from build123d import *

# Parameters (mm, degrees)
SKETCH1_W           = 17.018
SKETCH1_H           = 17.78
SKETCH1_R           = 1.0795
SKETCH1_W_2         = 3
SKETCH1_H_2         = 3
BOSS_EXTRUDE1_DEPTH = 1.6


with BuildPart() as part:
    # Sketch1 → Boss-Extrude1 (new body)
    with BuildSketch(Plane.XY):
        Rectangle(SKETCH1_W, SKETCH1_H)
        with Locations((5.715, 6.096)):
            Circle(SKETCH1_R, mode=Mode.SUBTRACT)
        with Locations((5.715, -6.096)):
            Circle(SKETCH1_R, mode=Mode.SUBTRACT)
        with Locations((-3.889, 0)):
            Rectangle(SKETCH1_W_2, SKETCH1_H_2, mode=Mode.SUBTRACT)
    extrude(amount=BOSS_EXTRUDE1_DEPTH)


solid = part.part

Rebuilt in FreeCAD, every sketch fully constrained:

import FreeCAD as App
import Part
import Sketcher

V = App.Vector
Q = App.Units.Quantity

doc = App.newDocument("Part")
body = doc.addObject("PartDesign::Body", "Body")

# Sketch on XY plane
sketch1 = body.newObject("Sketcher::SketchObject", "Sketch")
sketch1.AttachmentSupport = (doc.getObject("XY_Plane"), [""])
sketch1.MapMode = "FlatFace"
sketch1.addGeometry(Part.LineSegment(V(-8.5, 8.9, 0), V(-8.5, -8.9, 0)), False)
sketch1.addGeometry(Part.LineSegment(V(-8.5, -8.9, 0), V(8.5, -8.9, 0)), False)
sketch1.addGeometry(Part.LineSegment(V(8.5, -8.9, 0), V(8.5, 8.9, 0)), False)
sketch1.addGeometry(Part.LineSegment(V(8.5, 8.9, 0), V(-8.5, 8.9, 0)), False)
sketch1.addGeometry(Part.LineSegment(V(-2.4, -1.5, 0), V(-5.4, -1.5, 0)), False)
sketch1.addGeometry(Part.LineSegment(V(-5.4, -1.5, 0), V(-5.4, 1.5, 0)), False)
sketch1.addGeometry(Part.LineSegment(V(-5.4, 1.5, 0), V(-2.4, 1.5, 0)), False)
sketch1.addGeometry(Part.LineSegment(V(-2.4, 1.5, 0), V(-2.4, -1.5, 0)), False)
sketch1.addGeometry(Part.Circle(V(5.7, -6.1, 0), V(0, 0, 1), 1.1), False)
sketch1.addGeometry(Part.Circle(V(5.7, 6.1, 0), V(0, 0, 1), 1.1), False)
sketch1.addConstraint(Sketcher.Constraint("Coincident", 0, 2, 1, 1))
sketch1.addConstraint(Sketcher.Constraint("Coincident", 1, 2, 2, 1))
sketch1.addConstraint(Sketcher.Constraint("Coincident", 2, 2, 3, 1))
sketch1.addConstraint(Sketcher.Constraint("Coincident", 3, 2, 0, 1))
sketch1.addConstraint(Sketcher.Constraint("Coincident", 4, 2, 5, 1))
sketch1.addConstraint(Sketcher.Constraint("Coincident", 5, 2, 6, 1))
sketch1.addConstraint(Sketcher.Constraint("Coincident", 6, 2, 7, 1))
sketch1.addConstraint(Sketcher.Constraint("Coincident", 7, 2, 4, 1))
sketch1.addConstraint(Sketcher.Constraint("Vertical", 0))
sketch1.addConstraint(Sketcher.Constraint("Horizontal", 1))
sketch1.addConstraint(Sketcher.Constraint("Vertical", 2))
sketch1.addConstraint(Sketcher.Constraint("Horizontal", 3))
sketch1.addConstraint(Sketcher.Constraint("Horizontal", 4))
sketch1.addConstraint(Sketcher.Constraint("Vertical", 5))
sketch1.addConstraint(Sketcher.Constraint("Horizontal", 6))
sketch1.addConstraint(Sketcher.Constraint("Vertical", 7))
sketch1.addConstraint(Sketcher.Constraint("Equal", 8, 9))
sketch1.addConstraint(Sketcher.Constraint("Symmetric", 0, 2, 2, 2, -1, 1))
sketch1.addConstraint(Sketcher.Constraint("Symmetric", 8, 3, 9, 3, -1))
sketch1.addConstraint(Sketcher.Constraint("Equal", 6, 5))
sketch1.addConstraint(Sketcher.Constraint("Diameter", 8, Q("0.085 in")))
sketch1.addConstraint(Sketcher.Constraint("DistanceY", 0, 2, 0, 1, Q("0.7 in")))
sketch1.addConstraint(Sketcher.Constraint("DistanceX", 1, 1, 1, 2, Q("0.67 in")))
sketch1.addConstraint(Sketcher.Constraint("DistanceY", 8, 3, -1, 1, Q("0.24 in")))
sketch1.addConstraint(Sketcher.Constraint("DistanceX", 0, 2, 8, 3, Q("0.56 in")))
sketch1.addConstraint(Sketcher.Constraint("DistanceX", 4, 2, 4, 1, 3.0))
sketch1.addConstraint(Sketcher.Constraint("DistanceX", 4, 2, -1, 1, 5.389))
sketch1.addConstraint(Sketcher.Constraint("DistanceY", 4, 2, -1, 1, 1.5))
pad1 = body.newObject("PartDesign::Pad", "Pad")
pad1.Profile = sketch1
pad1.Length = 1.6

doc.recompute()
